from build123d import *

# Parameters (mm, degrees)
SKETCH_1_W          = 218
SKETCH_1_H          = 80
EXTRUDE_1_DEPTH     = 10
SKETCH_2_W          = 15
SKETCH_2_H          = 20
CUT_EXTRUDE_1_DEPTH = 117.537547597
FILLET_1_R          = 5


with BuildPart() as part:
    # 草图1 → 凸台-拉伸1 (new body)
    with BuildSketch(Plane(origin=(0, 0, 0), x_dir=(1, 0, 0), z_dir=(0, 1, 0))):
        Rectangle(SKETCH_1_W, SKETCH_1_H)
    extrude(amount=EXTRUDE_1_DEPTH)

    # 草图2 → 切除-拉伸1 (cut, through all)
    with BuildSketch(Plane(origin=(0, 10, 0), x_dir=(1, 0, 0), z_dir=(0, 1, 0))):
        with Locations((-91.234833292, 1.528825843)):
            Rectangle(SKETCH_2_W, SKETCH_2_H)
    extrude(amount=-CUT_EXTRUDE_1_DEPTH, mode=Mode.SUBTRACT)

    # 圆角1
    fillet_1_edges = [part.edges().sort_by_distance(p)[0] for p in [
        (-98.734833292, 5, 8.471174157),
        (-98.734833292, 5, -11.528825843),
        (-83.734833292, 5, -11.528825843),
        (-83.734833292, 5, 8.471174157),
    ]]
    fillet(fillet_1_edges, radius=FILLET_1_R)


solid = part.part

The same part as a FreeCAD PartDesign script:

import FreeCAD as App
import Part
import Sketcher
from FreeCAD import Vector


def edges_at(feature, points):
    """Names of the edges that pass closest to the given points."""
    edges = feature.Shape.Edges
    near = lambda p: min(range(len(edges)), key=lambda i: edges[i].distToShape(Part.Vertex(*p))[0])
    return sorted({f"Edge{near(p) + 1}" for p in points})


def add_polygon(sketch, points):
    """Adds a closed chain of lines whose ends are joined by coincident constraints."""
    first, n = sketch.GeometryCount, len(points)
    for a, b in zip(points, points[1:] + points[:1]):
        sketch.addGeometry(Part.LineSegment(App.Vector(*a, 0), App.Vector(*b, 0)), False)
    for i in range(n):
        sketch.addConstraint(Sketcher.Constraint("Coincident", first + i, 2, first + (i + 1) % n, 1))

doc = App.newDocument("Part")
body = doc.addObject("PartDesign::Body", "Body")

# Sketch on XZ plane
sketch1 = body.newObject("Sketcher::SketchObject", "Sketch")
sketch1.AttachmentSupport = (doc.getObject("XZ_Plane"), [""])
sketch1.MapMode = "FlatFace"
add_polygon(sketch1, [(-109, -40), (-109, 40), (109, 40), (109, -40)])  # lines 0-3
sketch1.addConstraint([
    Sketcher.Constraint("Vertical", 0),
    Sketcher.Constraint("Horizontal", 1),
    Sketcher.Constraint("Vertical", 2),
    Sketcher.Constraint("Horizontal", 3),
    Sketcher.Constraint("Symmetric", 0, 2, 2, 2, -1, 1),
    Sketcher.Constraint("DistanceX", 1, 1, 1, 2, 218.0),
    Sketcher.Constraint("DistanceY", 0, 1, 0, 2, 80.0),
])
pad1 = body.newObject("PartDesign::Pad", "Pad")
pad1.Profile = sketch1
pad1.Length = 10
pad1.Reversed = True

# Sketch on XZ plane
sketch2 = body.newObject("Sketcher::SketchObject", "Sketch001")
sketch2.AttachmentSupport = (doc.getObject("XZ_Plane"), [""])
sketch2.MapMode = "FlatFace"
sketch2.AttachmentOffset = App.Placement(Vector(0, 0, -10), App.Rotation())
add_polygon(sketch2, [(-99, -12), (-99, 8), (-84, 8), (-84, -12)])  # lines 0-3
sketch2.addConstraint([
    Sketcher.Constraint("Vertical", 0),
    Sketcher.Constraint("Horizontal", 1),
    Sketcher.Constraint("Vertical", 2),
    Sketcher.Constraint("Horizontal", 3),
    Sketcher.Constraint("DistanceX", 1, 1, 1, 2, 15.0),
    Sketcher.Constraint("DistanceY", 0, 1, 0, 2, 20.0),
    Sketcher.Constraint("DistanceX", 0, 2, -1, 1, 98.734833),
    Sketcher.Constraint("DistanceY", -1, 1, 0, 2, 8.471174),
])
pocket1 = body.newObject("PartDesign::Pocket", "Pocket")
pocket1.Profile = sketch2
pocket1.Type = "ThroughAll"
pocket1.Reversed = True
doc.recompute()

fillet = body.newObject("PartDesign::Fillet", "Fillet")
fillet.Base = (pocket1, edges_at(pocket1, [
    (-98.735, 5, 8.471),
    (-98.735, 5, -11.529),
    (-83.735, 5, -11.529),
    (-83.735, 5, 8.471),
]))
fillet.Radius = 5

doc.recompute()
